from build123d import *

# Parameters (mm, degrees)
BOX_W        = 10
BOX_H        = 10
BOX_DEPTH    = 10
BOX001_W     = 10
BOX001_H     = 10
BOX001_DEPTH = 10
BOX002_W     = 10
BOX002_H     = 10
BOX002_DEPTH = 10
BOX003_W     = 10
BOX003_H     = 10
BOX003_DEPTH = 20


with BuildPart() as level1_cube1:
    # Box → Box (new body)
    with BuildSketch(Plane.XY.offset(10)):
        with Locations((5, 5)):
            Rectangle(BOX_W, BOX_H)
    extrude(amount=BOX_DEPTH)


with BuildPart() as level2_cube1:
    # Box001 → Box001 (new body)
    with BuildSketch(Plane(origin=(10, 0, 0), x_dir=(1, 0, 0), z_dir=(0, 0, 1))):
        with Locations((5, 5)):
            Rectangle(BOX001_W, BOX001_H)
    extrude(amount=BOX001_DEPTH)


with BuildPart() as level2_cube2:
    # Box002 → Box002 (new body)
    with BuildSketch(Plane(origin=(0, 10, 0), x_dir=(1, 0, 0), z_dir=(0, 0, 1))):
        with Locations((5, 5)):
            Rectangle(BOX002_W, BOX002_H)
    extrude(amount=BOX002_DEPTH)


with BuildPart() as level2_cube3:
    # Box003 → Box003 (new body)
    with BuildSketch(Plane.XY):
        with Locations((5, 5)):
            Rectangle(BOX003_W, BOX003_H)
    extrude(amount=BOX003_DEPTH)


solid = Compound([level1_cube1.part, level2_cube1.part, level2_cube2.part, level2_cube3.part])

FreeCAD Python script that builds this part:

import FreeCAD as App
import Part
import Sketcher
from FreeCAD import Vector


def add_polygon(sketch, points):
    """Adds a closed chain of lines whose ends are joined by coincident constraints."""
    first, n = sketch.GeometryCount, len(points)
    for a, b in zip(points, points[1:] + points[:1]):
        sketch.addGeometry(Part.LineSegment(App.Vector(*a, 0), App.Vector(*b, 0)), False)
    for i in range(n):
        sketch.addConstraint(Sketcher.Constraint("Coincident", first + i, 2, first + (i + 1) % n, 1))

doc = App.newDocument("Part")
params = doc.addObject("Spreadsheet::Sheet", "Params")
for row, (alias, value) in enumerate([
    ("sketch1_width", "10 mm"),
    ("pad1_length", "10 mm"),
    ("sketch2_width", "10 mm"),
    ("pad2_length", "10 mm"),
    ("sketch3_width", "10 mm"),
    ("pad3_length", "10 mm"),
    ("sketch4_width", "10 mm"),
    ("pad4_length", "20 mm"),
], start=1):
    params.set(f"A{row}", alias)
    params.set(f"B{row}", "=" + value)
    params.setAlias(f"B{row}", alias)

body = doc.addObject("PartDesign::Body", "Body")

# Sketch on XY plane
sketch1 = body.newObject("Sketcher::SketchObject", "Sketch")
sketch1.AttachmentSupport = (doc.getObject("XY_Plane"), [""])
sketch1.MapMode = "FlatFace"
sketch1.AttachmentOffset = App.Placement(Vector(0, 0, 10), App.Rotation())
add_polygon(sketch1, [(0, 10), (0, 0), (10, 0), (10, 10)])  # lines 0-3
sketch1.addConstraint([
    Sketcher.Constraint("Vertical", 0),
    Sketcher.Constraint("Horizontal", 1),
    Sketcher.Constraint("Vertical", 2),
    Sketcher.Constraint("Horizontal", 3),
    Sketcher.Constraint("Coincident", 0, 2, -1, 1),
    Sketcher.Constraint("Equal", 3, 0),
    Sketcher.Constraint("DistanceX", 1, 1, 1, 2, 10.0),
])
sketch1.setExpression("Constraints[10]", "Params.sketch1_width")
pad1 = body.newObject("PartDesign::Pad", "Pad")
pad1.Profile = sketch1
pad1.setExpression("Length", "Params.pad1_length")
body2 = doc.addObject("PartDesign::Body", "Body001")

# Sketch on XY plane
sketch2 = body2.newObject("Sketcher::SketchObject", "Sketch001")
sketch2.AttachmentSupport = (doc.getObject("XY_Plane001"), [""])
sketch2.MapMode = "FlatFace"
add_polygon(sketch2, [(10, 10), (10, 0), (20, 0), (20, 10)])  # lines 0-3
sketch2.addConstraint([
    Sketcher.Constraint("Vertical", 0),
    Sketcher.Constraint("Horizontal", 1),
    Sketcher.Constraint("Vertical", 2),
    Sketcher.Constraint("Horizontal", 3),
    Sketcher.Constraint("PointOnObject", 0, 2, -1),
    Sketcher.Constraint("Equal", 3, 0),
    Sketcher.Constraint("DistanceX", 1, 1, 1, 2, 10.0),
    Sketcher.Constraint("DistanceX", -1, 1, 0, 2, 10.0),
])
sketch2.setExpression("Constraints[10]", "Params.sketch2_width")
pad2 = body2.newObject("PartDesign::Pad", "Pad001")
pad2.Profile = sketch2
pad2.setExpression("Length", "Params.pad2_length")
body3 = doc.addObject("PartDesign::Body", "Body002")

# Sketch on XY plane
sketch3 = body3.newObject("Sketcher::SketchObject", "Sketch002")
sketch3.AttachmentSupport = (doc.getObject("XY_Plane002"), [""])
sketch3.MapMode = "FlatFace"
add_polygon(sketch3, [(0, 20), (0, 10), (10, 10), (10, 20)])  # lines 0-3
sketch3.addConstraint([
    Sketcher.Constraint("Vertical", 0),
    Sketcher.Constraint("Horizontal", 1),
    Sketcher.Constraint("Vertical", 2),
    Sketcher.Constraint("Horizontal", 3),
    Sketcher.Constraint("PointOnObject", 0, 2, -2),
    Sketcher.Constraint("Equal", 3, 0),
    Sketcher.Constraint("DistanceX", 1, 1, 1, 2, 10.0),
    Sketcher.Constraint("DistanceY", -1, 1, 0, 2, 10.0),
])
sketch3.setExpression("Constraints[10]", "Params.sketch3_width")
pad3 = body3.newObject("PartDesign::Pad", "Pad002")
pad3.Profile = sketch3
pad3.setExpression("Length", "Params.pad3_length")
body4 = doc.addObject("PartDesign::Body", "Body003")

# Sketch on XY plane
sketch4 = body4.newObject("Sketcher::SketchObject", "Sketch003")
sketch4.AttachmentSupport = (doc.getObject("XY_Plane003"), [""])
sketch4.MapMode = "FlatFace"
add_polygon(sketch4, [(0, 10), (0, 0), (10, 0), (10, 10)])  # lines 0-3
sketch4.addConstraint([
    Sketcher.Constraint("Vertical", 0),
    Sketcher.Constraint("Horizontal", 1),
    Sketcher.Constraint("Vertical", 2),
    Sketcher.Constraint("Horizontal", 3),
    Sketcher.Constraint("Coincident", 0, 2, -1, 1),
    Sketcher.Constraint("Equal", 3, 0),
    Sketcher.Constraint("DistanceX", 1, 1, 1, 2, 10.0),
])
sketch4.setExpression("Constraints[10]", "Params.sketch4_width")
pad4 = body4.newObject("PartDesign::Pad", "Pad003")
pad4.Profile = sketch4
pad4.setExpression("Length", "Params.pad4_length")

doc.recompute()
